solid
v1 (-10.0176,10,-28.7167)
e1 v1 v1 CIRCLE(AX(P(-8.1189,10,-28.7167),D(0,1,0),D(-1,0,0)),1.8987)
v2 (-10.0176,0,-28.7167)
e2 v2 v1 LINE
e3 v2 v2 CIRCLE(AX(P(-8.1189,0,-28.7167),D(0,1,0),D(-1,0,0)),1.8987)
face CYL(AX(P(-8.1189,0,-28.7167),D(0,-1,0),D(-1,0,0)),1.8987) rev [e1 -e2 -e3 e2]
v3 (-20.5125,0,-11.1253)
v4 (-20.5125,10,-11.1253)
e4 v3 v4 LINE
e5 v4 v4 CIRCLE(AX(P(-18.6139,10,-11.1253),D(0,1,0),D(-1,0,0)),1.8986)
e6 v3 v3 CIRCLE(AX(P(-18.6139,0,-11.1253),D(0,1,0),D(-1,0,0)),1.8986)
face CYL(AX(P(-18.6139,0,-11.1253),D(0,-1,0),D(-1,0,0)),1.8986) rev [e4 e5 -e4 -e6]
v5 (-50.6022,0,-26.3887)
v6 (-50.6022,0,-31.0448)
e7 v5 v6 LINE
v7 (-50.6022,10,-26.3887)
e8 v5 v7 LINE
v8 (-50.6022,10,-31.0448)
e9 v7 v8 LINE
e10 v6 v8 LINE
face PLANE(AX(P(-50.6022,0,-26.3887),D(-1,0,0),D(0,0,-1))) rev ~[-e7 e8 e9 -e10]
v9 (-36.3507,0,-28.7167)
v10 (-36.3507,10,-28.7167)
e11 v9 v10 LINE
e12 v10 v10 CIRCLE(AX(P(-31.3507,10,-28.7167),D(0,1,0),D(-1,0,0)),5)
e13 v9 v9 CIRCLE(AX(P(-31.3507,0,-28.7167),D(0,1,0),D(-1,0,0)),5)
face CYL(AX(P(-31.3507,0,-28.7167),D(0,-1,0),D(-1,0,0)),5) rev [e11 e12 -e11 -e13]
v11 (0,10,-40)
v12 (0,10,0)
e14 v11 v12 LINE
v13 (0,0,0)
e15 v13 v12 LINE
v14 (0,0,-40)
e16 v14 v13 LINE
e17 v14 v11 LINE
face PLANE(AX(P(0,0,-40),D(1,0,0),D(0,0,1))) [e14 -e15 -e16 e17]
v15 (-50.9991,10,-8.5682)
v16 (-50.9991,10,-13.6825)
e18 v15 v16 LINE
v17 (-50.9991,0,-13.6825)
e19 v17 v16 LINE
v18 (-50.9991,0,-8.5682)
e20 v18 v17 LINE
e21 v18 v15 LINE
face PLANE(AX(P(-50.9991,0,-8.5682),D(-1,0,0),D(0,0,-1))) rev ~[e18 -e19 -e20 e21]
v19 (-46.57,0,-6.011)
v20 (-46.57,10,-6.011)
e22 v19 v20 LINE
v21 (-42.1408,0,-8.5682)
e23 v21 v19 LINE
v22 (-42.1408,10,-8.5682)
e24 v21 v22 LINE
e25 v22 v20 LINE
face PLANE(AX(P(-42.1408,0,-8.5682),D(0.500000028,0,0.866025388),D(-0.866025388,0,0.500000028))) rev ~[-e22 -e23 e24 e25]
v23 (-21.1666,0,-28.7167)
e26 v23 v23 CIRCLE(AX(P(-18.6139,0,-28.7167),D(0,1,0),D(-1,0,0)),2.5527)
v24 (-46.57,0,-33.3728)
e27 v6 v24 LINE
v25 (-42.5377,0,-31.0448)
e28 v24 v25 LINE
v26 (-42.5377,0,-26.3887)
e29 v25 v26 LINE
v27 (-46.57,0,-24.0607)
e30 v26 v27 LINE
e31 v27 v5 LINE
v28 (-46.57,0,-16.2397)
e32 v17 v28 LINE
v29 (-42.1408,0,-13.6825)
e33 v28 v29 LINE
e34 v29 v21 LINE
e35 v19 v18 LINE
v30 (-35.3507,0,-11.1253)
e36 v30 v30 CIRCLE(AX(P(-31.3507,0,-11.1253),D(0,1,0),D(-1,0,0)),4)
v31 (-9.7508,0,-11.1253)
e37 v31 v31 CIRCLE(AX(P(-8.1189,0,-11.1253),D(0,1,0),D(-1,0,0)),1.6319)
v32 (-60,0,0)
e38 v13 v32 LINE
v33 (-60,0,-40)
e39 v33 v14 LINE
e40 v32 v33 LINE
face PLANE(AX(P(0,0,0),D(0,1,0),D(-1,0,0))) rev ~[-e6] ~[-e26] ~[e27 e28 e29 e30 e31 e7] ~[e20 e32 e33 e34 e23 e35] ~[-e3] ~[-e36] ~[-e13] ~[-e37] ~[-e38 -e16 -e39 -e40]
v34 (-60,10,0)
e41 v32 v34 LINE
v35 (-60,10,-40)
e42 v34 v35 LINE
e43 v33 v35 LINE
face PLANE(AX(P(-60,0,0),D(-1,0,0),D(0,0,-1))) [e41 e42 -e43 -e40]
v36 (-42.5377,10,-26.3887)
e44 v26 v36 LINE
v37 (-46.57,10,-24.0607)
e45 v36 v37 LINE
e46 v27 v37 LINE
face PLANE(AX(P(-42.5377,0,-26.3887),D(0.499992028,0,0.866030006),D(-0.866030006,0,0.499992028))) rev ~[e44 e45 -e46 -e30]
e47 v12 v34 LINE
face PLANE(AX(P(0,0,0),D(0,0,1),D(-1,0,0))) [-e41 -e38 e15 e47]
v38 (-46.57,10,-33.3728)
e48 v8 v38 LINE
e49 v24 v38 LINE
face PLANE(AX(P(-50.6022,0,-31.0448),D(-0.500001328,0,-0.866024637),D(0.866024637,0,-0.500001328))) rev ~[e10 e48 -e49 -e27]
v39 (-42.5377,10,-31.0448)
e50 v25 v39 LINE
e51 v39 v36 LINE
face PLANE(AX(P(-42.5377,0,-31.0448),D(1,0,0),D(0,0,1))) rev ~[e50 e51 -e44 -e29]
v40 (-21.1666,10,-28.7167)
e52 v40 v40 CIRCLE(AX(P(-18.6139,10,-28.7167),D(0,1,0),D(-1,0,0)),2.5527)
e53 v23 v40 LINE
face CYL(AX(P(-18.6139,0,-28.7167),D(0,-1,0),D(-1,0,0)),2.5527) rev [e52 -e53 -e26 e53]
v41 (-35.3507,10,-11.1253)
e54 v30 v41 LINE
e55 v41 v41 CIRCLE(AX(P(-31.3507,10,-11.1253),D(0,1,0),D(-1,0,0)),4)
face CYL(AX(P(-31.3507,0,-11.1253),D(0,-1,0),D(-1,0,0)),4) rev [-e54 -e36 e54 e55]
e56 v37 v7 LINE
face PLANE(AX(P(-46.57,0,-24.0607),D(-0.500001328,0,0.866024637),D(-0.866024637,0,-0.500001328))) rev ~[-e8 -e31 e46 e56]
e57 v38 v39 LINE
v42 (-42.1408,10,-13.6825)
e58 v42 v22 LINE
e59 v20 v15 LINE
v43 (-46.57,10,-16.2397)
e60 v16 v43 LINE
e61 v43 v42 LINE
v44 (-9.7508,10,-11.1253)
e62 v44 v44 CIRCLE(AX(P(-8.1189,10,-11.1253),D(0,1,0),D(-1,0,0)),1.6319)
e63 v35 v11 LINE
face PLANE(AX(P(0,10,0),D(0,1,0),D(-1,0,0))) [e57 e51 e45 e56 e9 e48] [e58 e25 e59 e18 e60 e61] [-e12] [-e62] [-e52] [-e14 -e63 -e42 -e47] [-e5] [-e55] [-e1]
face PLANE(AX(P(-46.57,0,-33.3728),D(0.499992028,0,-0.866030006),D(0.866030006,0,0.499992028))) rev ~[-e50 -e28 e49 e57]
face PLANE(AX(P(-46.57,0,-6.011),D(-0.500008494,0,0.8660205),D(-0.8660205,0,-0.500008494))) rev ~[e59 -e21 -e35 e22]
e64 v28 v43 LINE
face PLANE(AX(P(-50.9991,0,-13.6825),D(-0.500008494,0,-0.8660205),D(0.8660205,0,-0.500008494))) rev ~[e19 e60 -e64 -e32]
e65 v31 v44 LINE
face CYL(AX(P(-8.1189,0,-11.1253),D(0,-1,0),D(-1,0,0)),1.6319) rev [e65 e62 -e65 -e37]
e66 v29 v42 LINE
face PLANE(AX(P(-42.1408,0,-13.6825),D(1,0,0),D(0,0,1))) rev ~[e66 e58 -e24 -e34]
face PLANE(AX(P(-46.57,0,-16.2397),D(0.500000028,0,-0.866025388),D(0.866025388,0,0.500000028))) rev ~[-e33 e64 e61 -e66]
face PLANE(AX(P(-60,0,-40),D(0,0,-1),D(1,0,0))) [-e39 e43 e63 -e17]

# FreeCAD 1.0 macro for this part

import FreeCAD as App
import Part
import Sketcher
Q = App.Units.Quantity


def add_polygon(sketch, points):
    """Adds a closed chain of lines whose ends are joined by coincident constraints."""
    first, n = sketch.GeometryCount, len(points)
    for a, b in zip(points, points[1:] + points[:1]):
        sketch.addGeometry(Part.LineSegment(App.Vector(*a, 0), App.Vector(*b, 0)), False)
    for i in range(n):
        sketch.addConstraint(Sketcher.Constraint("Coincident", first + i, 2, first + (i + 1) % n, 1))

doc = App.newDocument("Part")
body = doc.addObject("PartDesign::Body", "Body")

sketch1 = body.newObject("Sketcher::SketchObject", "Sketch")
sketch1.AttachmentSupport = (doc.getObject("XZ_Plane"), [""])
sketch1.MapMode = "FlatFace"
add_polygon(sketch1, [(-60, 0), (0, 0), (0, -40), (-60, -40)])
sketch1.addGeometry(Part.Circle(App.Vector(-8.1189, -28.7167, 0), App.Vector(0, 0, 1), 1.8987), False)
sketch1.addGeometry(Part.Circle(App.Vector(-18.6139, -28.7167, 0), App.Vector(0, 0, 1), 2.5527), False)
sketch1.addGeometry(Part.Circle(App.Vector(-31.3507, -28.7167, 0), App.Vector(0, 0, 1), 5), False)
add_polygon(sketch1, [(-50.6022, -26.3887), (-50.6022, -31.0448), (-46.57, -33.3728), (-42.5377, -31.0448), (-42.5377, -26.3887), (-46.57, -24.0607)])
sketch1.addGeometry(Part.Circle(App.Vector(-8.1189, -11.1253, 0), App.Vector(0, 0, 1), 1.6319), False)
sketch1.addGeometry(Part.Circle(App.Vector(-18.6139, -11.1253, 0), App.Vector(0, 0, 1), 1.8986), False)
sketch1.addGeometry(Part.Circle(App.Vector(-31.3507, -11.1253, 0), App.Vector(0, 0, 1), 4), False)
add_polygon(sketch1, [(-50.9991, -8.5682), (-50.9991, -13.6825), (-46.57, -16.2397), (-42.1408, -13.6825), (-42.1408, -8.5682), (-46.57, -6.011)])
sketch1.addConstraint(Sketcher.Constraint("Horizontal", 0))
sketch1.addConstraint(Sketcher.Constraint("Vertical", 1))
sketch1.addConstraint(Sketcher.Constraint("Horizontal", 2))
sketch1.addConstraint(Sketcher.Constraint("Vertical", 3))
sketch1.addConstraint(Sketcher.Constraint("Vertical", 7))
sketch1.addConstraint(Sketcher.Constraint("Vertical", 10))
sketch1.addConstraint(Sketcher.Constraint("Vertical", 16))
sketch1.addConstraint(Sketcher.Constraint("Vertical", 19))
sketch1.addConstraint(Sketcher.Constraint("Coincident", 0, 2, -1, 1))
sketch1.addConstraint(Sketcher.Constraint("Equal", 4, 14))
sketch1.addConstraint(Sketcher.Constraint("Parallel", 8, 11))
sketch1.addConstraint(Sketcher.Constraint("Parallel", 9, 12))
sketch1.addConstraint(Sketcher.Constraint("Parallel", 11, 17))
sketch1.addConstraint(Sketcher.Constraint("Parallel", 12, 18))
sketch1.addConstraint(Sketcher.Constraint("Parallel", 17, 20))
sketch1.addConstraint(Sketcher.Constraint("Parallel", 18, 21))
sketch1.addConstraint(Sketcher.Constraint("Horizontal", 4, 3, 5, 3))
sketch1.addConstraint(Sketcher.Constraint("Horizontal", 5, 3, 6, 3))
sketch1.addConstraint(Sketcher.Constraint("Horizontal", 13, 3, 14, 3))
sketch1.addConstraint(Sketcher.Constraint("Horizontal", 14, 3, 15, 3))
sketch1.addConstraint(Sketcher.Constraint("Horizontal", 7, 2, 9, 2))
sketch1.addConstraint(Sketcher.Constraint("Horizontal", 10, 2, 12, 2))
sketch1.addConstraint(Sketcher.Constraint("Horizontal", 16, 2, 18, 2))
sketch1.addConstraint(Sketcher.Constraint("Horizontal", 19, 2, 21, 2))
sketch1.addConstraint(Sketcher.Constraint("Vertical", 4, 3, 13, 3))
sketch1.addConstraint(Sketcher.Constraint("Vertical", 5, 3, 14, 3))
sketch1.addConstraint(Sketcher.Constraint("Vertical", 6, 3, 15, 3))
sketch1.addConstraint(Sketcher.Constraint("Vertical", 8, 2, 11, 2))
sketch1.addConstraint(Sketcher.Constraint("Vertical", 11, 2, 17, 2))
sketch1.addConstraint(Sketcher.Constraint("Diameter", 6, Q("10 mm")))
sketch1.addConstraint(Sketcher.Constraint("Diameter", 15, Q("8 mm")))
sketch1.addConstraint(Sketcher.Constraint("DistanceX", 0, 1, 0, 2, Q("60 mm")))
sketch1.addConstraint(Sketcher.Constraint("DistanceY", 1, 2, 1, 1, Q("40 mm")))
sketch1.addConstraint(Sketcher.Constraint("Diameter", 4, Q("3.7974 mm")))
sketch1.addConstraint(Sketcher.Constraint("Diameter", 5, Q("5.1054 mm")))
sketch1.addConstraint(Sketcher.Constraint("Diameter", 13, Q("3.2638 mm")))
sketch1.addConstraint(Sketcher.Constraint("Angle", 8, Q("-30 deg")))
sketch1.addConstraint(Sketcher.Constraint("DistanceY", 8, 2, 11, 2, Q("9.312 mm")))
sketch1.addConstraint(Sketcher.Constraint("DistanceX", 7, 2, 9, 2, Q("8.0645 mm")))
sketch1.addConstraint(Sketcher.Constraint("DistanceX", 16, 2, 18, 2, Q("8.8583 mm")))
sketch1.addConstraint(Sketcher.Constraint("DistanceY", 17, 2, 20, 2, Q("10.2287 mm")))
sketch1.addConstraint(Sketcher.Constraint("DistanceX", 8, 2, -1, 1, Q("46.57 mm")))
sketch1.addConstraint(Sketcher.Constraint("DistanceX", 18, 2, 15, 3, Q("10.79 mm")))
sketch1.addConstraint(Sketcher.Constraint("DistanceX", 4, 3, -1, 1, Q("8.119 mm")))
sketch1.addConstraint(Sketcher.Constraint("DistanceX", 5, 3, -1, 1, Q("18.614 mm")))
sketch1.addConstraint(Sketcher.Constraint("DistanceY", 20, 2, -1, 1, Q("6.011 mm")))
sketch1.addConstraint(Sketcher.Constraint("DistanceY", 7, 2, 6, 3, Q("2.328 mm")))
sketch1.addConstraint(Sketcher.Constraint("DistanceY", 11, 2, 17, 2, Q("7.821 mm")))
sketch1.addConstraint(Sketcher.Constraint("DistanceY", 15, 3, 19, 2, Q("2.557 mm")))
pad1 = body.newObject("PartDesign::Pad", "Pad")
pad1.Profile = sketch1
pad1.Length = 10
pad1.Reversed = True

doc.recompute()
